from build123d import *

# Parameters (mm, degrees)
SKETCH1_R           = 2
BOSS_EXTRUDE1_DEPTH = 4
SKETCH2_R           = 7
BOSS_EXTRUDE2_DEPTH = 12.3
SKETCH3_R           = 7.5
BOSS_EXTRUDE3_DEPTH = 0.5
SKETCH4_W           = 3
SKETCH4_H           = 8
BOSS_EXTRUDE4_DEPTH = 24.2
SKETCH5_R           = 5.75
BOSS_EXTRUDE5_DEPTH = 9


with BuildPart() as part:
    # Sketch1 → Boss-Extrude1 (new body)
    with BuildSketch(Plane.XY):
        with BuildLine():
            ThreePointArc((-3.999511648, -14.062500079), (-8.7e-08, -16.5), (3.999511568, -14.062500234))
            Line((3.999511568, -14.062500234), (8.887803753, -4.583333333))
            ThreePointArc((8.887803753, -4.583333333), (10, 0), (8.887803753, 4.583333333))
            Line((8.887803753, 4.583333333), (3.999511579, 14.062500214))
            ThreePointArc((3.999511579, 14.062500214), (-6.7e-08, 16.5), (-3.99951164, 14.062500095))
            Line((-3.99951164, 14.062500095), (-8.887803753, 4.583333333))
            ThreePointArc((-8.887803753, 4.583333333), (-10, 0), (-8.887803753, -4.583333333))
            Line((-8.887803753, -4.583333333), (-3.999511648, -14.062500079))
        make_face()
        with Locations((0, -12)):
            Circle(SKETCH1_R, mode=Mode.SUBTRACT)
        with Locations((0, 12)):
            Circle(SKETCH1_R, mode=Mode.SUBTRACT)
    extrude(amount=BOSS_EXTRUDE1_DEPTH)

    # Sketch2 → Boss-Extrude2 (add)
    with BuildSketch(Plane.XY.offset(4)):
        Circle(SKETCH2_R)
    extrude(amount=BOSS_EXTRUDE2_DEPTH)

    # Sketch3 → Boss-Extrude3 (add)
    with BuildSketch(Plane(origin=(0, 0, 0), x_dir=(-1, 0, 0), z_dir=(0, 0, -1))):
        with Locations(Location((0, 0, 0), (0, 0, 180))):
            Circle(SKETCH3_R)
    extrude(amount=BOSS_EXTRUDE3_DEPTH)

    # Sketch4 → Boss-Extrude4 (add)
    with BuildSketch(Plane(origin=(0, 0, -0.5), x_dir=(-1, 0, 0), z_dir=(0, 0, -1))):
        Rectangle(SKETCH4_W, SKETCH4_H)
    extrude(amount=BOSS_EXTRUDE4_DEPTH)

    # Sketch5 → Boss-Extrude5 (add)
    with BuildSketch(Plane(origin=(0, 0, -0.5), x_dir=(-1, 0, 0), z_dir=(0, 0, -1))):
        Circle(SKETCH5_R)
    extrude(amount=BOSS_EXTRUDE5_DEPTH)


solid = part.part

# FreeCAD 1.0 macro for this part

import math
import FreeCAD as App
import Part
import Sketcher
Q = App.Units.Quantity


def add_polygon(sketch, points):
    """Adds a closed chain of lines whose ends are joined by coincident constraints."""
    first, n = sketch.GeometryCount, len(points)
    for a, b in zip(points, points[1:] + points[:1]):
        sketch.addGeometry(Part.LineSegment(App.Vector(*a, 0), App.Vector(*b, 0)), False)
    for i in range(n):
        sketch.addConstraint(Sketcher.Constraint("Coincident", first + i, 2, first + (i + 1) % n, 1))

doc = App.newDocument("Part")
params = doc.addObject("Spreadsheet::Sheet", "Params")
for row, (alias, value) in enumerate([
    ("sketch1_diameter", "4 mm"),
    ("sketch1_radius", "10 mm"),
    ("sketch1_radius2", "4.5 mm"),
    ("pad1_length", "4 mm"),
    ("sketch2_diameter", "14 mm"),
    ("pad2_length", "12.3 mm"),
    ("sketch3_diameter", "15 mm"),
    ("pad3_length", "0.5 mm"),
    ("sketch4_width", "3 mm"),
    ("sketch4_height", "8 mm"),
    ("pad4_length", "24.2 mm"),
    ("sketch5_diameter", "11.5 mm"),
    ("pad5_length", "9 mm"),
], start=1):
    params.set(f"A{row}", alias)
    params.set(f"B{row}", "=" + value)
    params.setAlias(f"B{row}", alias)

body = doc.addObject("PartDesign::Body", "Body")

# Sketch on XY plane
sketch1 = body.newObject("Sketcher::SketchObject", "Sketch")
sketch1.AttachmentSupport = (doc.getObject("XY_Plane"), [""])
sketch1.MapMode = "FlatFace"
sketch1.addGeometry([
    Part.ArcOfCircle(Part.Circle(App.Vector(0, -12, 0), App.Vector(0, 0, 1), 4.5), math.radians(-152.720386), math.radians(-27.279616)),  # 0
    Part.LineSegment(App.Vector(3.999512, -14.0625, 0), App.Vector(8.887804, -4.583333, 0)),  # 1
    Part.ArcOfCircle(Part.Circle(App.Vector(0, 0, 0), App.Vector(0, 0, 1), 10), math.radians(-27.279613), math.radians(27.279613)),  # 2
    Part.LineSegment(App.Vector(8.887804, 4.583333, 0), App.Vector(3.999512, 14.0625, 0)),  # 3
    Part.ArcOfCircle(Part.Circle(App.Vector(0, 12, 0), App.Vector(0, 0, 1), 4.5), math.radians(27.279616), math.radians(152.720386)),  # 4
    Part.LineSegment(App.Vector(-3.999512, 14.0625, 0), App.Vector(-8.887804, 4.583333, 0)),  # 5
    Part.ArcOfCircle(Part.Circle(App.Vector(0, 0, 0), App.Vector(0, 0, 1), 10), math.radians(152.720387), math.radians(207.279613)),  # 6
    Part.LineSegment(App.Vector(-8.887804, -4.583333, 0), App.Vector(-3.999512, -14.0625, 0)),  # 7
    Part.Circle(App.Vector(0, -12, 0), App.Vector(0, 0, 1), 2),  # 8
    Part.Circle(App.Vector(0, 12, 0), App.Vector(0, 0, 1), 2),  # 9
], False)
sketch1.addConstraint([
    Sketcher.Constraint("Tangent", 0, 2, 1, 1),
    Sketcher.Constraint("Tangent", 1, 2, 2, 1),
    Sketcher.Constraint("Tangent", 2, 2, 3, 1),
    Sketcher.Constraint("Tangent", 3, 2, 4, 1),
    Sketcher.Constraint("Tangent", 4, 2, 5, 1),
    Sketcher.Constraint("Tangent", 5, 2, 6, 1),
    Sketcher.Constraint("Tangent", 6, 2, 7, 1),
    Sketcher.Constraint("Tangent", 7, 2, 0, 1),
    Sketcher.Constraint("Coincident", 2, 3, -1, 1),
    Sketcher.Constraint("Coincident", 6, 3, -1, 1),
    Sketcher.Constraint("Coincident", 8, 3, 0, 3),
    Sketcher.Constraint("Coincident", 9, 3, 4, 3),
    Sketcher.Constraint("Equal", 0, 4),
    Sketcher.Constraint("Equal", 2, 6),
    Sketcher.Constraint("Equal", 8, 9),
    Sketcher.Constraint("Symmetric", 0, 3, 4, 3, -1, 1),
    Sketcher.Constraint("PointOnObject", 0, 3, -2),
    Sketcher.Constraint("Diameter", 8, Q("4 mm")),
    Sketcher.Constraint("Radius", 2, Q("10 mm")),
    Sketcher.Constraint("Radius", 0, Q("4.5 mm")),
    Sketcher.Constraint("DistanceY", 0, 3, -1, 1, Q("12 mm")),
])
sketch1.setExpression("Constraints[17]", "Params.sketch1_diameter")
sketch1.setExpression("Constraints[18]", "Params.sketch1_radius")
sketch1.setExpression("Constraints[19]", "Params.sketch1_radius2")
pad1 = body.newObject("PartDesign::Pad", "Pad")
pad1.Profile = sketch1
pad1.setExpression("Length", "Params.pad1_length")

# Sketch on XY plane
sketch2 = body.newObject("Sketcher::SketchObject", "Sketch001")
sketch2.AttachmentSupport = (doc.getObject("XY_Plane"), [""])
sketch2.MapMode = "FlatFace"
sketch2.AttachmentOffset = App.Placement(App.Vector(0, 0, 4), App.Rotation())
sketch2.addGeometry(Part.Circle(App.Vector(0, 0, 0), App.Vector(0, 0, 1), 7), False)
sketch2.addConstraint([
    Sketcher.Constraint("Coincident", 0, 3, -1, 1),
    Sketcher.Constraint("Diameter", 0, Q("14 mm")),
])
sketch2.setExpression("Constraints[1]", "Params.sketch2_diameter")
pad2 = body.newObject("PartDesign::Pad", "Pad001")
pad2.Profile = sketch2
pad2.setExpression("Length", "Params.pad2_length")

# Sketch on XY plane
sketch3 = body.newObject("Sketcher::SketchObject", "Sketch002")
sketch3.AttachmentSupport = (doc.getObject("XY_Plane"), [""])
sketch3.MapMode = "FlatFace"
sketch3.addGeometry(Part.Circle(App.Vector(0, 0, 0), App.Vector(0, 0, 1), 7.5), False)
sketch3.addConstraint([
    Sketcher.Constraint("Coincident", 0, 3, -1, 1),
    Sketcher.Constraint("Diameter", 0, Q("15 mm")),
])
sketch3.setExpression("Constraints[1]", "Params.sketch3_diameter")
pad3 = body.newObject("PartDesign::Pad", "Pad002")
pad3.Profile = sketch3
pad3.setExpression("Length", "Params.pad3_length")
pad3.Reversed = True

# Sketch on XY plane
sketch4 = body.newObject("Sketcher::SketchObject", "Sketch003")
sketch4.AttachmentSupport = (doc.getObject("XY_Plane"), [""])
sketch4.MapMode = "FlatFace"
sketch4.AttachmentOffset = App.Placement(App.Vector(0, 0, -0.5), App.Rotation())
add_polygon(sketch4, [(1.5, 4), (1.5, -4), (-1.5, -4), (-1.5, 4)])  # lines 0-3
sketch4.addConstraint([
    Sketcher.Constraint("Vertical", 0),
    Sketcher.Constraint("Horizontal", 1),
    Sketcher.Constraint("Vertical", 2),
    Sketcher.Constraint("Horizontal", 3),
    Sketcher.Constraint("Symmetric", 0, 2, 2, 2, -1, 1),
    Sketcher.Constraint("DistanceX", 1, 2, 1, 1, Q("3 mm")),
    Sketcher.Constraint("DistanceY", 0, 2, 0, 1, Q("8 mm")),
])
sketch4.setExpression("Constraints[9]", "Params.sketch4_width")
sketch4.setExpression("Constraints[10]", "Params.sketch4_height")
pad4 = body.newObject("PartDesign::Pad", "Pad003")
pad4.Profile = sketch4
pad4.setExpression("Length", "Params.pad4_length")
pad4.Reversed = True

# Sketch on XY plane
sketch5 = body.newObject("Sketcher::SketchObject", "Sketch004")
sketch5.AttachmentSupport = (doc.getObject("XY_Plane"), [""])
sketch5.MapMode = "FlatFace"
sketch5.AttachmentOffset = App.Placement(App.Vector(0, 0, -0.5), App.Rotation())
sketch5.addGeometry(Part.Circle(App.Vector(0, 0, 0), App.Vector(0, 0, 1), 5.75), False)
sketch5.addConstraint([
    Sketcher.Constraint("Coincident", 0, 3, -1, 1),
    Sketcher.Constraint("Diameter", 0, Q("11.5 mm")),
])
sketch5.setExpression("Constraints[1]", "Params.sketch5_diameter")
pad5 = body.newObject("PartDesign::Pad", "Pad004")
pad5.Profile = sketch5
pad5.setExpression("Length", "Params.pad5_length")
pad5.Reversed = True

doc.recompute()
